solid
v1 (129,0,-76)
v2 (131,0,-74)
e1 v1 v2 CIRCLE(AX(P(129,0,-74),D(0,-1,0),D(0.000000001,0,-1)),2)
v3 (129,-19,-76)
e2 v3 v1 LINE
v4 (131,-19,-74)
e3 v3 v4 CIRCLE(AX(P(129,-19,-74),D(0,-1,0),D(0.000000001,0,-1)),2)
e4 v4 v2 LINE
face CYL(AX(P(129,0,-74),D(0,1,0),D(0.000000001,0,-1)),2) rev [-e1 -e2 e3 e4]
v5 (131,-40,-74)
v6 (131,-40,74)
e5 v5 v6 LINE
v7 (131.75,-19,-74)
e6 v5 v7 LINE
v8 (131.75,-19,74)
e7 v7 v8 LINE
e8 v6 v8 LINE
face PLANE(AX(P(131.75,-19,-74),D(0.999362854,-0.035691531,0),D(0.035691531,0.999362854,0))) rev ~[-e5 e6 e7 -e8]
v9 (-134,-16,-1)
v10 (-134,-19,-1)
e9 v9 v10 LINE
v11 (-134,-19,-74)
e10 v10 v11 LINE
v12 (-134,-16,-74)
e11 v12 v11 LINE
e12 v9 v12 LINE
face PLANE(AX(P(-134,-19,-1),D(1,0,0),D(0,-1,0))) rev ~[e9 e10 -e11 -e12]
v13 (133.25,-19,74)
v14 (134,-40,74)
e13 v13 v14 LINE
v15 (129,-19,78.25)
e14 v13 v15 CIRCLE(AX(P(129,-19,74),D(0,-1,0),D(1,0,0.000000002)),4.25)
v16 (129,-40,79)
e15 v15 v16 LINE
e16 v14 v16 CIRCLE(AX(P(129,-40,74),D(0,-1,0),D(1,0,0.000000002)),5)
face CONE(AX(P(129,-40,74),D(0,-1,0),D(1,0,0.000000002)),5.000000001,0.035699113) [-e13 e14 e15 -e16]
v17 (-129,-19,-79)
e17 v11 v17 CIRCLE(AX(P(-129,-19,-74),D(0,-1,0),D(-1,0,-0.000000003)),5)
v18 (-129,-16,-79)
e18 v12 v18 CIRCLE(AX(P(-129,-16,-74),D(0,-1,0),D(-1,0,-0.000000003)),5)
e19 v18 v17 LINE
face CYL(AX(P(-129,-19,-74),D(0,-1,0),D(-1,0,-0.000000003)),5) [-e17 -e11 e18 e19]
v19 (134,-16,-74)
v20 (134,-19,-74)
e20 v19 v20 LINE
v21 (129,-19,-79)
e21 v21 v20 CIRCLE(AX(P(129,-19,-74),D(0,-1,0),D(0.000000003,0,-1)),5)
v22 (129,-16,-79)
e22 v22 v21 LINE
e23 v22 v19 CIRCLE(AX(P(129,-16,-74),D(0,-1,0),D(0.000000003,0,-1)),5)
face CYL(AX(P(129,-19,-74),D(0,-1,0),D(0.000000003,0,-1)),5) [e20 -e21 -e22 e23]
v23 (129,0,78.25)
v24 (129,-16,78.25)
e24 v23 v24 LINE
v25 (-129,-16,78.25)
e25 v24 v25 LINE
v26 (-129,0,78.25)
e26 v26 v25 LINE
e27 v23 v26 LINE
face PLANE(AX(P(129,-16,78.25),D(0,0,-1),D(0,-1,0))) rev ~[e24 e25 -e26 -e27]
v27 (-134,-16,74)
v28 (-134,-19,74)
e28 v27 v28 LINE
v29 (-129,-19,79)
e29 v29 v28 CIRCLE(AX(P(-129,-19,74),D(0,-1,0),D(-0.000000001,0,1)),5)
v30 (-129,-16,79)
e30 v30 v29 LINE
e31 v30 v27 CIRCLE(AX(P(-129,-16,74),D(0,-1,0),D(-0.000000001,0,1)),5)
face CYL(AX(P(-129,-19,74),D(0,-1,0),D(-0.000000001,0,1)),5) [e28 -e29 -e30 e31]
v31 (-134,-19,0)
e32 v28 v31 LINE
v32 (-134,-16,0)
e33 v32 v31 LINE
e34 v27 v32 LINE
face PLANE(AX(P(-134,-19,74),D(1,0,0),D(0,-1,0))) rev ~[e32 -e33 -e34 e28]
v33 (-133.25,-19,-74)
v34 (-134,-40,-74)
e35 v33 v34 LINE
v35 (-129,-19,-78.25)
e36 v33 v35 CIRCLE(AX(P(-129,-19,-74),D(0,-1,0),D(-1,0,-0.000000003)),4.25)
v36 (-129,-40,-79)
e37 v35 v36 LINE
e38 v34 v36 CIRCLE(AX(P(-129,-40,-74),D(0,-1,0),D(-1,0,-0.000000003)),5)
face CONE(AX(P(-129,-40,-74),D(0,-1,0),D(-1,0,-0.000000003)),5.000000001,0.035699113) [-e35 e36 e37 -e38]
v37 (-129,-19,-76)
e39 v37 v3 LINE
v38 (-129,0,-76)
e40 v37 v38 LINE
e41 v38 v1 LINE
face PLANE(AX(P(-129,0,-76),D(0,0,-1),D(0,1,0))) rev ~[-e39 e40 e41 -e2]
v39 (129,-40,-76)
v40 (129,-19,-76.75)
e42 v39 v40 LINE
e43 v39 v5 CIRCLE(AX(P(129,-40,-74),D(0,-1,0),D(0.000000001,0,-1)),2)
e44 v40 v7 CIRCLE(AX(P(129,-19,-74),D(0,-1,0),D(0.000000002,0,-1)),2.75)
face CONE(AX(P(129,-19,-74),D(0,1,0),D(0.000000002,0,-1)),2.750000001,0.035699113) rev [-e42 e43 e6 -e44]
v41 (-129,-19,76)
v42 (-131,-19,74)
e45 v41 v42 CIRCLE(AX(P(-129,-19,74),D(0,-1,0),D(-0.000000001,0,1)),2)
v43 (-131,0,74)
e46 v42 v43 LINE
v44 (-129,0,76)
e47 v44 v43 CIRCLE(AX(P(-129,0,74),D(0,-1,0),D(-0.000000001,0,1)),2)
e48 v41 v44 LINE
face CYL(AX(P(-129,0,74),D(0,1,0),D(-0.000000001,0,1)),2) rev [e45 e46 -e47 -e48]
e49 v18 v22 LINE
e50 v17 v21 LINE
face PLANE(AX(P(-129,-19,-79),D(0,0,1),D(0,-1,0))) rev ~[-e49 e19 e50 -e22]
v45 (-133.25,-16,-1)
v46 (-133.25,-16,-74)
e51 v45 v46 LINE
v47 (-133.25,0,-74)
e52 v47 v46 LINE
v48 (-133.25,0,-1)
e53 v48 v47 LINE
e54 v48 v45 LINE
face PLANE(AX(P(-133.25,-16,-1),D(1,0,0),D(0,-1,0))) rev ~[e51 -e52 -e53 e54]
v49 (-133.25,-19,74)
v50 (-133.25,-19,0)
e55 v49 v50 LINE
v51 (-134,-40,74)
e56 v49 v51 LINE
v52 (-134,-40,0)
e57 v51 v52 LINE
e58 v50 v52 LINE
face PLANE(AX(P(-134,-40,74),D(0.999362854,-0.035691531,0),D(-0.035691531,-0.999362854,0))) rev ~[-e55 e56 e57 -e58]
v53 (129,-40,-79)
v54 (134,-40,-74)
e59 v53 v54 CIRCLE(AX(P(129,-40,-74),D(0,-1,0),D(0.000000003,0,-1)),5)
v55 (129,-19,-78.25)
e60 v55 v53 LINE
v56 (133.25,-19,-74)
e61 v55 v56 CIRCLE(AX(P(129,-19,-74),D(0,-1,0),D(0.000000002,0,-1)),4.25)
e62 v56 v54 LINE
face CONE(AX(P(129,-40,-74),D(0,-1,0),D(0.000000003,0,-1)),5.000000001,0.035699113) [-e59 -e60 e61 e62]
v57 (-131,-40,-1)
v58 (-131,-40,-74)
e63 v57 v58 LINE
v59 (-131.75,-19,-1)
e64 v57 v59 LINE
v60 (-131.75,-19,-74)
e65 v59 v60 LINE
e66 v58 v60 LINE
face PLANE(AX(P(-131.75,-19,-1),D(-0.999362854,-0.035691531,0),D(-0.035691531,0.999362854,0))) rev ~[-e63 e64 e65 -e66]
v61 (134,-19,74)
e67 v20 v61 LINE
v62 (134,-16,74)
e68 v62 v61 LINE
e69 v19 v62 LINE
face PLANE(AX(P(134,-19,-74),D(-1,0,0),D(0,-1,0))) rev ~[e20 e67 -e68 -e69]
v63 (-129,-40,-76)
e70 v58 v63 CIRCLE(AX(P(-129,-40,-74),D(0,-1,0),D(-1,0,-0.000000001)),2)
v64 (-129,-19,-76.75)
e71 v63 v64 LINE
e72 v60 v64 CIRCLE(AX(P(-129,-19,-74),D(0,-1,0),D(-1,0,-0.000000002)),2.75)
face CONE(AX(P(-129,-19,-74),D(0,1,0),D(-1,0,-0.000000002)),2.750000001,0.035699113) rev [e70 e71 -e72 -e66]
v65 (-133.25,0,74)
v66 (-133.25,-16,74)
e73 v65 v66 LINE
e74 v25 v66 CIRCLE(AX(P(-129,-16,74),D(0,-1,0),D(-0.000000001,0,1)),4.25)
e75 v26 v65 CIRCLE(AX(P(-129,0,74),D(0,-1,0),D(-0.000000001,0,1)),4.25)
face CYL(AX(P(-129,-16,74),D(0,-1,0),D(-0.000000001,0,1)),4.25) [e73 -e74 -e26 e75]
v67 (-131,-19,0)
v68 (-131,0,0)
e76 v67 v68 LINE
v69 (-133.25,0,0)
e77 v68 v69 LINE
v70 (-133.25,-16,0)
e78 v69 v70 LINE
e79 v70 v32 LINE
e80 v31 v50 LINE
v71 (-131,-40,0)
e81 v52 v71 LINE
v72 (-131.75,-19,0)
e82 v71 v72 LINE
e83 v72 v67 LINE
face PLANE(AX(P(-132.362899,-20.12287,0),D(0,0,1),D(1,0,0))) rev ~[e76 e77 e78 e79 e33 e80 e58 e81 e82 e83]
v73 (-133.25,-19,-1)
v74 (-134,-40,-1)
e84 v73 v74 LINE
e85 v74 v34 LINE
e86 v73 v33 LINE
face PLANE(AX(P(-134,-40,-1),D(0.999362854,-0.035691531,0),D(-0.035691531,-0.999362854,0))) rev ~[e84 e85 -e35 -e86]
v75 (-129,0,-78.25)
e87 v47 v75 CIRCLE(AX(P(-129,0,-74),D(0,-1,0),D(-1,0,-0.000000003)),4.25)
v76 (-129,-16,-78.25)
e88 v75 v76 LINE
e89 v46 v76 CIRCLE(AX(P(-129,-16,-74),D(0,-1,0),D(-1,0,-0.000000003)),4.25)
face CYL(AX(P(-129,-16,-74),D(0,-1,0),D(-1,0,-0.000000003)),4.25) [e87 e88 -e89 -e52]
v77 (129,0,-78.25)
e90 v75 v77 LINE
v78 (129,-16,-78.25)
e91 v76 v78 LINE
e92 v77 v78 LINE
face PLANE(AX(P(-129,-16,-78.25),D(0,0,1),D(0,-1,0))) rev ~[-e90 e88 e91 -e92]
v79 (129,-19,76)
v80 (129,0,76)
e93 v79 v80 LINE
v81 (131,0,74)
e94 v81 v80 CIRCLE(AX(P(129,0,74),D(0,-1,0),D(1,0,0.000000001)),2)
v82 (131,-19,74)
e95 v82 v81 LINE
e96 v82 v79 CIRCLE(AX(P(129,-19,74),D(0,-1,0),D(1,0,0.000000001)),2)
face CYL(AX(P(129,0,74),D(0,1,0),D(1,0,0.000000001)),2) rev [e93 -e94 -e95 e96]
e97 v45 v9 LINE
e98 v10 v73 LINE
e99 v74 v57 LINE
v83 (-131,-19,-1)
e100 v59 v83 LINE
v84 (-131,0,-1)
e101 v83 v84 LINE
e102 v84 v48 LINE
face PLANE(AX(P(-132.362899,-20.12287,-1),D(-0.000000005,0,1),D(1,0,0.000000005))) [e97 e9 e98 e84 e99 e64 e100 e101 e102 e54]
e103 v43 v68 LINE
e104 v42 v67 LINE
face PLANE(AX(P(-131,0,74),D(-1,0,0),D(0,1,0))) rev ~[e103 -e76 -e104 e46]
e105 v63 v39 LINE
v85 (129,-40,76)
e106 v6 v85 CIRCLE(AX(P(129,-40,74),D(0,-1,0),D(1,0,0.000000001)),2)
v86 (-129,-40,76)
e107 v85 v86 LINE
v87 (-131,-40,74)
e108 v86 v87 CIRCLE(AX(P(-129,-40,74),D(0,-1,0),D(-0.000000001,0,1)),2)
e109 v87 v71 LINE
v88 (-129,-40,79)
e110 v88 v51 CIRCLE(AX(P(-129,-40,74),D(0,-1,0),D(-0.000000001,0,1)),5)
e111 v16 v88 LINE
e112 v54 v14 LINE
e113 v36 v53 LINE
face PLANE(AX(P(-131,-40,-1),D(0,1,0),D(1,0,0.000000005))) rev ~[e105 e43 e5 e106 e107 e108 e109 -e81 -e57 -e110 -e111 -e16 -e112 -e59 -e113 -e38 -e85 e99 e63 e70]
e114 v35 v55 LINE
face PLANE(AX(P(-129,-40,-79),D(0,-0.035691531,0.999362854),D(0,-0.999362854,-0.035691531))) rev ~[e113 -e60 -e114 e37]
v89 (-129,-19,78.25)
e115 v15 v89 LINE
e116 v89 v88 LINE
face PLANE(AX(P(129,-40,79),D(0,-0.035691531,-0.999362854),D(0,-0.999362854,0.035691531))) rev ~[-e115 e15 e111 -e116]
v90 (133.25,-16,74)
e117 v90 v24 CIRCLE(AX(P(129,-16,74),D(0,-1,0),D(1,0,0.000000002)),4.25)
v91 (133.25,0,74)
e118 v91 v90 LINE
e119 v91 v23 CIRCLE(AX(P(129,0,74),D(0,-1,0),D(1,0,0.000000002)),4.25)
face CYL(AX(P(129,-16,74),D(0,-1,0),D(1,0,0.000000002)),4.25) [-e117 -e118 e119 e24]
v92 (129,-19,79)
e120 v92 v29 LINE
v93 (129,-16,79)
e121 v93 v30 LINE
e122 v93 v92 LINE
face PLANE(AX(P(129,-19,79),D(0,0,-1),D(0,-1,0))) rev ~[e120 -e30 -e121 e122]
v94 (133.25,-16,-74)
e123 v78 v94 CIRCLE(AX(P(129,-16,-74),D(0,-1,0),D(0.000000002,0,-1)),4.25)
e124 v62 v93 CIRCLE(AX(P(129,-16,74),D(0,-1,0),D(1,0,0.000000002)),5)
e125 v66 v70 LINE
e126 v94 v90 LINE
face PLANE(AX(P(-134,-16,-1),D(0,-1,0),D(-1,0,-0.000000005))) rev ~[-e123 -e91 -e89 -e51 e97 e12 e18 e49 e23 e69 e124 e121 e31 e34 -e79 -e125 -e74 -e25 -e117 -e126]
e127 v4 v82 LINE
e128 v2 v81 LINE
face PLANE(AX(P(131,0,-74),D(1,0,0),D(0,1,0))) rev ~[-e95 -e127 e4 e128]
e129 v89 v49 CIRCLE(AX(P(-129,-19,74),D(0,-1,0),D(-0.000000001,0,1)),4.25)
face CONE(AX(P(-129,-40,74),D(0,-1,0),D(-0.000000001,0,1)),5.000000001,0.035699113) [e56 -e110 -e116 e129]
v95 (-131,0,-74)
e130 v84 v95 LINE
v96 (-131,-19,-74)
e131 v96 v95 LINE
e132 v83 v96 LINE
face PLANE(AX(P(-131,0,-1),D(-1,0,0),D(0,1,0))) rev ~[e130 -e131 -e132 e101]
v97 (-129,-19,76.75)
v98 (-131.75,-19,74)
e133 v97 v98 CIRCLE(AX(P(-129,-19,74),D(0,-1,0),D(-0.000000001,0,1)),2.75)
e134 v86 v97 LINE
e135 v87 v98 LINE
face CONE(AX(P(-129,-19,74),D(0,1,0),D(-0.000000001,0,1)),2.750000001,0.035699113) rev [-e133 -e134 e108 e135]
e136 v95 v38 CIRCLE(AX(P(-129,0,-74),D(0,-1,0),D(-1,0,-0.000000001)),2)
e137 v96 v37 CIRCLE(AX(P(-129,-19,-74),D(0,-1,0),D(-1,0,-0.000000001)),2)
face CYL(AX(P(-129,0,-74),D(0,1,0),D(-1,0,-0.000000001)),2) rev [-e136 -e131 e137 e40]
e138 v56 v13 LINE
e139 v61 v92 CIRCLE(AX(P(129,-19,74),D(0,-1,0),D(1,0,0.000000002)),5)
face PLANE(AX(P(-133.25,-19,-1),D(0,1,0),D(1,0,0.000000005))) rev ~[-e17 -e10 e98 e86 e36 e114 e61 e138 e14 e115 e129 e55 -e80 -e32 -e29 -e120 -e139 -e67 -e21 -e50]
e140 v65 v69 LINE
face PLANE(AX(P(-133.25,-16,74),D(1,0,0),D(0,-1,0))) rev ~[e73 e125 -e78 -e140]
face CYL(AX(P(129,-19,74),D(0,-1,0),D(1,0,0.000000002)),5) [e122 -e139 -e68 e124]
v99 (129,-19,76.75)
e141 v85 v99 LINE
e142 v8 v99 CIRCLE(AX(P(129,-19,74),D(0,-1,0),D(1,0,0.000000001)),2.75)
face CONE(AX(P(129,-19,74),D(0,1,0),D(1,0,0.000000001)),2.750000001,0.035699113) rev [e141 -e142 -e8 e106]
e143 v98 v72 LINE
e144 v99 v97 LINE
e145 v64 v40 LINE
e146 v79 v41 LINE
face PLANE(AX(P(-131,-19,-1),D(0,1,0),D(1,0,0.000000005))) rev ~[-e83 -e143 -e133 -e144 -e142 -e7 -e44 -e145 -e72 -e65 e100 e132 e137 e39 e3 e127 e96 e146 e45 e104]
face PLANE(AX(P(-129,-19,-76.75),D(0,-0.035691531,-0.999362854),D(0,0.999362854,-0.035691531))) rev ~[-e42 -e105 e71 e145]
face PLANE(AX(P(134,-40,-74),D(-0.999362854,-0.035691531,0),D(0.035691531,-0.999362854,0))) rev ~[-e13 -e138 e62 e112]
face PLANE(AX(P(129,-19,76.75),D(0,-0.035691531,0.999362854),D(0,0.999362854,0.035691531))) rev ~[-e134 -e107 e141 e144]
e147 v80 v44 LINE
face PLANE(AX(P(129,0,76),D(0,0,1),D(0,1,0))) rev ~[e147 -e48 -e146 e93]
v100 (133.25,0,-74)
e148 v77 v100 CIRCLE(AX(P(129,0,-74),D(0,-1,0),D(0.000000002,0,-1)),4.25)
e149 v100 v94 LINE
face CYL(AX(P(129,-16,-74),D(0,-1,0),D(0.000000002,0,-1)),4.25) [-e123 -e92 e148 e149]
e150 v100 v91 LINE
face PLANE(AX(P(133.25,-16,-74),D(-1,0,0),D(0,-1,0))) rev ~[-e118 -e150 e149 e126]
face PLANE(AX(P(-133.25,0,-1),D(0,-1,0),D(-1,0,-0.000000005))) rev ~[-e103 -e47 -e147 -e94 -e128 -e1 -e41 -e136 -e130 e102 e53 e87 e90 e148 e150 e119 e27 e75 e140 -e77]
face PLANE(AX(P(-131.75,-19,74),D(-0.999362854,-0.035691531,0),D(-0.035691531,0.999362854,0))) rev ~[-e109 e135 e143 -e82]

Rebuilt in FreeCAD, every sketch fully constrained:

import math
import FreeCAD as App
import Part
import Sketcher
Q = App.Units.Quantity


def add_polygon(sketch, points):
    """Adds a closed chain of lines whose ends are joined by coincident constraints."""
    first, n = sketch.GeometryCount, len(points)
    for a, b in zip(points, points[1:] + points[:1]):
        sketch.addGeometry(Part.LineSegment(App.Vector(*a, 0), App.Vector(*b, 0)), False)
    for i in range(n):
        sketch.addConstraint(Sketcher.Constraint("Coincident", first + i, 2, first + (i + 1) % n, 1))

doc = App.newDocument("Part")
params = doc.addObject("Spreadsheet::Sheet", "Params")
for row, (alias, value) in enumerate([
    ("sketch1_width", "3 mm"),
    ("sketch1_height", "19 mm"),
    ("sketch1_width2", "2.25 mm"),
    ("sketch2_radius", "2 mm"),
    ("sketch2_width", "258 mm"),
    ("sketch2_height", "73 mm"),
    ("sketch2_height2", "148 mm"),
], start=1):
    params.set(f"A{row}", alias)
    params.set(f"B{row}", "=" + value)
    params.setAlias(f"B{row}", alias)

body = doc.addObject("PartDesign::Body", "Body")

# Sketch on XY plane
sketch1 = body.newObject("Sketcher::SketchObject", "Sketch")
sketch1.AttachmentSupport = (doc.getObject("XY_Plane"), [""])
sketch1.MapMode = "FlatFace"
add_polygon(sketch1, [(-131, -19), (-131, 0), (-133.2, 0), (-133.2, -16), (-134, -16), (-134, -19), (-133.2, -19), (-134, -40), (-131, -40), (-131.8, -19)])  # lines 0-9
sketch1.addConstraint(Sketcher.Constraint("Vertical", 0))
sketch1.addConstraint(Sketcher.Constraint("Horizontal", 1))
sketch1.addConstraint(Sketcher.Constraint("Vertical", 2))
sketch1.addConstraint(Sketcher.Constraint("Horizontal", 3))
sketch1.addConstraint(Sketcher.Constraint("Vertical", 4))
sketch1.addConstraint(Sketcher.Constraint("Horizontal", 5))
sketch1.addConstraint(Sketcher.Constraint("Horizontal", 7))
sketch1.addConstraint(Sketcher.Constraint("Horizontal", 9))
sketch1.addConstraint(Sketcher.Constraint("PointOnObject", 0, 2, -1))
sketch1.addConstraint(Sketcher.Constraint("Horizontal", 5, 2, 8, 2))
sketch1.addConstraint(Sketcher.Constraint("Vertical", 2, 2, 5, 2))
sketch1.addConstraint(Sketcher.Constraint("Vertical", 4, 2, 6, 2))
sketch1.addConstraint(Sketcher.Constraint("Vertical", 0, 2, 7, 2))
sketch1.addConstraint(Sketcher.Constraint("Equal", 5, 9))
sketch1.addConstraint(Sketcher.Constraint("Equal", 7, 4))
sketch1.addConstraint(Sketcher.Constraint("DistanceX", 7, 1, 7, 2, Q("3 mm")))
sketch1.addConstraint(Sketcher.Constraint("DistanceY", 0, 1, 0, 2, Q("19 mm")))
sketch1.addConstraint(Sketcher.Constraint("DistanceX", 0, 2, -1, 1, Q("131 mm")))
sketch1.addConstraint(Sketcher.Constraint("DistanceY", 6, 2, -1, 1, Q("40 mm")))
sketch1.addConstraint(Sketcher.Constraint("DistanceX", 1, 2, 1, 1, Q("2.25 mm")))
sketch1.setExpression("Constraints[25]", "Params.sketch1_width")
sketch1.setExpression("Constraints[26]", "Params.sketch1_height")
sketch1.setExpression("Constraints[29]", "Params.sketch1_width2")

# Sketch on XZ plane
sketch2 = body.newObject("Sketcher::SketchObject", "Sketch001")
sketch2.AttachmentSupport = (doc.getObject("XZ_Plane"), [""])
sketch2.MapMode = "FlatFace"
sketch2.addGeometry(Part.LineSegment(App.Vector(-131, -1, 0), App.Vector(-131, -74, 0)), False)
sketch2.addGeometry(Part.ArcOfCircle(Part.Circle(App.Vector(-129, -74, 0), App.Vector(0, 0, 1), 2), math.radians(-180), math.radians(-90)), False)
sketch2.addGeometry(Part.LineSegment(App.Vector(-129, -76, 0), App.Vector(129, -76, 0)), False)
sketch2.addGeometry(Part.ArcOfCircle(Part.Circle(App.Vector(129, -74, 0), App.Vector(0, 0, 1), 2), math.radians(-90), math.radians(0)), False)
sketch2.addGeometry(Part.LineSegment(App.Vector(131, -74, 0), App.Vector(131, 74, 0)), False)
sketch2.addGeometry(Part.ArcOfCircle(Part.Circle(App.Vector(129, 74, 0), App.Vector(0, 0, 1), 2), math.radians(0), math.radians(90)), False)
sketch2.addGeometry(Part.LineSegment(App.Vector(129, 76, 0), App.Vector(-129, 76, 0)), False)
sketch2.addGeometry(Part.ArcOfCircle(Part.Circle(App.Vector(-129, 74, 0), App.Vector(0, 0, 1), 2), math.radians(90), math.radians(180)), False)
sketch2.addGeometry(Part.LineSegment(App.Vector(-131, 74, 0), App.Vector(-131, 0, 0)), False)
sketch2.addConstraint(Sketcher.Constraint("Tangent", 0, 2, 1, 1))
sketch2.addConstraint(Sketcher.Constraint("Tangent", 1, 2, 2, 1))
sketch2.addConstraint(Sketcher.Constraint("Tangent", 2, 2, 3, 1))
sketch2.addConstraint(Sketcher.Constraint("Tangent", 3, 2, 4, 1))
sketch2.addConstraint(Sketcher.Constraint("Tangent", 4, 2, 5, 1))
sketch2.addConstraint(Sketcher.Constraint("Tangent", 5, 2, 6, 1))
sketch2.addConstraint(Sketcher.Constraint("Tangent", 6, 2, 7, 1))
sketch2.addConstraint(Sketcher.Constraint("Tangent", 7, 2, 8, 1))
sketch2.addConstraint(Sketcher.Constraint("Vertical", 0))
sketch2.addConstraint(Sketcher.Constraint("Horizontal", 2))
sketch2.addConstraint(Sketcher.Constraint("Vertical", 4))
sketch2.addConstraint(Sketcher.Constraint("Horizontal", 6))
sketch2.addConstraint(Sketcher.Constraint("Vertical", 8))
sketch2.addConstraint(Sketcher.Constraint("Equal", 1, 3))
sketch2.addConstraint(Sketcher.Constraint("Equal", 3, 5))
sketch2.addConstraint(Sketcher.Constraint("Equal", 5, 7))
sketch2.addConstraint(Sketcher.Constraint("Symmetric", 1, 3, 5, 3, -1, 1))
sketch2.addConstraint(Sketcher.Constraint("PointOnObject", 8, 2, -1))
sketch2.addConstraint(Sketcher.Constraint("Vertical", 1, 3, 7, 3))
sketch2.addConstraint(Sketcher.Constraint("Radius", 1, Q("2 mm")))
sketch2.addConstraint(Sketcher.Constraint("DistanceX", 2, 1, 2, 2, Q("258 mm")))
sketch2.addConstraint(Sketcher.Constraint("DistanceY", 0, 2, 0, 1, Q("73 mm")))
sketch2.addConstraint(Sketcher.Constraint("DistanceY", 4, 1, 4, 2, Q("148 mm")))
sketch2.setExpression("Constraints[19]", "Params.sketch2_radius")
sketch2.setExpression("Constraints[20]", "Params.sketch2_width")
sketch2.setExpression("Constraints[21]", "Params.sketch2_height")
sketch2.setExpression("Constraints[22]", "Params.sketch2_height2")
doc.recompute()

additivepipe = body.newObject("PartDesign::AdditivePipe", "AdditivePipe")
additivepipe.Profile = sketch1
additivepipe.Spine = (sketch2, ["Edge1", "Edge2", "Edge3", "Edge4", "Edge5", "Edge6", "Edge7", "Edge8", "Edge9"])

doc.recompute()
